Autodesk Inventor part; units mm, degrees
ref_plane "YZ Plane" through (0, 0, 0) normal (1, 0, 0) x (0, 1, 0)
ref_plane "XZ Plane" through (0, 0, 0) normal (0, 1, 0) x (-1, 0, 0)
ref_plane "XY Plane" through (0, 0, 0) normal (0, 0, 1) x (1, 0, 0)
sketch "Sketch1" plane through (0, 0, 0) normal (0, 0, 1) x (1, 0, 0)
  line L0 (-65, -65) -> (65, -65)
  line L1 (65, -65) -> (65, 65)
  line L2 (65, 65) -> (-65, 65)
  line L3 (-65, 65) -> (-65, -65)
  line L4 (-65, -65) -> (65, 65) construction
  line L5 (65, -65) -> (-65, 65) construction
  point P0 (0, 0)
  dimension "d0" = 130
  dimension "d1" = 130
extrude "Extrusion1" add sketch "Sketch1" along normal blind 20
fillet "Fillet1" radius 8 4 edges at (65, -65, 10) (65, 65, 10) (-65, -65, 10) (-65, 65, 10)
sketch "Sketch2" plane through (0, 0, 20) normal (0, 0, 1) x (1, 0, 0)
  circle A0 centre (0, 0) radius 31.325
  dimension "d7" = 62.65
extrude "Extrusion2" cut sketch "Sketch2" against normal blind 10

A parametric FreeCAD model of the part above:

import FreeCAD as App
import Part
import Sketcher
Q = App.Units.Quantity


def edges_at(feature, points):
    """Names of the edges that pass closest to the given points."""
    edges = feature.Shape.Edges
    near = lambda p: min(range(len(edges)), key=lambda i: edges[i].distToShape(Part.Vertex(*p))[0])
    return sorted({f"Edge{near(p) + 1}" for p in points})

doc = App.newDocument("Part")
body = doc.addObject("PartDesign::Body", "Body")

sketch1 = doc.addObject("Sketcher::SketchObject", "Sketch")
body.addObject(sketch1)
sketch1.AttachmentSupport = (doc.XY_Plane, [""])
sketch1.MapMode = "FlatFace"
sketch1.addGeometry([
    Part.LineSegment(App.Vector(-65, 65, 0), App.Vector(-65, -65, 0)),
    Part.LineSegment(App.Vector(-65, -65, 0), App.Vector(65, -65, 0)),
    Part.LineSegment(App.Vector(65, -65, 0), App.Vector(65, 65, 0)),
    Part.LineSegment(App.Vector(65, 65, 0), App.Vector(-65, 65, 0)),
], False)
sketch1.addConstraint([
    Sketcher.Constraint("Coincident", 0, 2, 1, 1),
    Sketcher.Constraint("Coincident", 1, 2, 2, 1),
    Sketcher.Constraint("Coincident", 2, 2, 3, 1),
    Sketcher.Constraint("Coincident", 3, 2, 0, 1),
    Sketcher.Constraint("Vertical", 0),
    Sketcher.Constraint("Horizontal", 1),
    Sketcher.Constraint("Vertical", 2),
    Sketcher.Constraint("Horizontal", 3),
    Sketcher.Constraint("Symmetric", 0, 2, 2, 2, -1, 1),
    Sketcher.Constraint("Equal", 3, 0),
    Sketcher.Constraint("DistanceX", 1, 1, 1, 2, Q("130 mm")),
])
pad1 = doc.addObject("PartDesign::Pad", "Pad")
body.addObject(pad1)
pad1.Profile = sketch1
pad1.Length = 20
doc.recompute()

fillet = doc.addObject("PartDesign::Fillet", "Fillet")
body.addObject(fillet)
fillet.Base = (pad1, edges_at(pad1, [
    (65, -65, 10),
    (65, 65, 10),
    (-65, -65, 10),
    (-65, 65, 10),
]))
fillet.Radius = 8

sketch2 = doc.addObject("Sketcher::SketchObject", "Sketch001")
body.addObject(sketch2)
sketch2.AttachmentSupport = (doc.XY_Plane, [""])
sketch2.MapMode = "FlatFace"
sketch2.AttachmentOffset = App.Placement(App.Vector(0, 0, 20), App.Rotation())
sketch2.addGeometry(Part.Circle(App.Vector(0, 0, 0), App.Vector(0, 0, 1), 31), False)
sketch2.addConstraint([
    Sketcher.Constraint("Coincident", 0, 3, -1, 1),
    Sketcher.Constraint("Diameter", 0, Q("62.65 mm")),
])
pocket1 = doc.addObject("PartDesign::Pocket", "Pocket")
body.addObject(pocket1)
pocket1.Profile = sketch2
pocket1.Length = 10

doc.recompute()
